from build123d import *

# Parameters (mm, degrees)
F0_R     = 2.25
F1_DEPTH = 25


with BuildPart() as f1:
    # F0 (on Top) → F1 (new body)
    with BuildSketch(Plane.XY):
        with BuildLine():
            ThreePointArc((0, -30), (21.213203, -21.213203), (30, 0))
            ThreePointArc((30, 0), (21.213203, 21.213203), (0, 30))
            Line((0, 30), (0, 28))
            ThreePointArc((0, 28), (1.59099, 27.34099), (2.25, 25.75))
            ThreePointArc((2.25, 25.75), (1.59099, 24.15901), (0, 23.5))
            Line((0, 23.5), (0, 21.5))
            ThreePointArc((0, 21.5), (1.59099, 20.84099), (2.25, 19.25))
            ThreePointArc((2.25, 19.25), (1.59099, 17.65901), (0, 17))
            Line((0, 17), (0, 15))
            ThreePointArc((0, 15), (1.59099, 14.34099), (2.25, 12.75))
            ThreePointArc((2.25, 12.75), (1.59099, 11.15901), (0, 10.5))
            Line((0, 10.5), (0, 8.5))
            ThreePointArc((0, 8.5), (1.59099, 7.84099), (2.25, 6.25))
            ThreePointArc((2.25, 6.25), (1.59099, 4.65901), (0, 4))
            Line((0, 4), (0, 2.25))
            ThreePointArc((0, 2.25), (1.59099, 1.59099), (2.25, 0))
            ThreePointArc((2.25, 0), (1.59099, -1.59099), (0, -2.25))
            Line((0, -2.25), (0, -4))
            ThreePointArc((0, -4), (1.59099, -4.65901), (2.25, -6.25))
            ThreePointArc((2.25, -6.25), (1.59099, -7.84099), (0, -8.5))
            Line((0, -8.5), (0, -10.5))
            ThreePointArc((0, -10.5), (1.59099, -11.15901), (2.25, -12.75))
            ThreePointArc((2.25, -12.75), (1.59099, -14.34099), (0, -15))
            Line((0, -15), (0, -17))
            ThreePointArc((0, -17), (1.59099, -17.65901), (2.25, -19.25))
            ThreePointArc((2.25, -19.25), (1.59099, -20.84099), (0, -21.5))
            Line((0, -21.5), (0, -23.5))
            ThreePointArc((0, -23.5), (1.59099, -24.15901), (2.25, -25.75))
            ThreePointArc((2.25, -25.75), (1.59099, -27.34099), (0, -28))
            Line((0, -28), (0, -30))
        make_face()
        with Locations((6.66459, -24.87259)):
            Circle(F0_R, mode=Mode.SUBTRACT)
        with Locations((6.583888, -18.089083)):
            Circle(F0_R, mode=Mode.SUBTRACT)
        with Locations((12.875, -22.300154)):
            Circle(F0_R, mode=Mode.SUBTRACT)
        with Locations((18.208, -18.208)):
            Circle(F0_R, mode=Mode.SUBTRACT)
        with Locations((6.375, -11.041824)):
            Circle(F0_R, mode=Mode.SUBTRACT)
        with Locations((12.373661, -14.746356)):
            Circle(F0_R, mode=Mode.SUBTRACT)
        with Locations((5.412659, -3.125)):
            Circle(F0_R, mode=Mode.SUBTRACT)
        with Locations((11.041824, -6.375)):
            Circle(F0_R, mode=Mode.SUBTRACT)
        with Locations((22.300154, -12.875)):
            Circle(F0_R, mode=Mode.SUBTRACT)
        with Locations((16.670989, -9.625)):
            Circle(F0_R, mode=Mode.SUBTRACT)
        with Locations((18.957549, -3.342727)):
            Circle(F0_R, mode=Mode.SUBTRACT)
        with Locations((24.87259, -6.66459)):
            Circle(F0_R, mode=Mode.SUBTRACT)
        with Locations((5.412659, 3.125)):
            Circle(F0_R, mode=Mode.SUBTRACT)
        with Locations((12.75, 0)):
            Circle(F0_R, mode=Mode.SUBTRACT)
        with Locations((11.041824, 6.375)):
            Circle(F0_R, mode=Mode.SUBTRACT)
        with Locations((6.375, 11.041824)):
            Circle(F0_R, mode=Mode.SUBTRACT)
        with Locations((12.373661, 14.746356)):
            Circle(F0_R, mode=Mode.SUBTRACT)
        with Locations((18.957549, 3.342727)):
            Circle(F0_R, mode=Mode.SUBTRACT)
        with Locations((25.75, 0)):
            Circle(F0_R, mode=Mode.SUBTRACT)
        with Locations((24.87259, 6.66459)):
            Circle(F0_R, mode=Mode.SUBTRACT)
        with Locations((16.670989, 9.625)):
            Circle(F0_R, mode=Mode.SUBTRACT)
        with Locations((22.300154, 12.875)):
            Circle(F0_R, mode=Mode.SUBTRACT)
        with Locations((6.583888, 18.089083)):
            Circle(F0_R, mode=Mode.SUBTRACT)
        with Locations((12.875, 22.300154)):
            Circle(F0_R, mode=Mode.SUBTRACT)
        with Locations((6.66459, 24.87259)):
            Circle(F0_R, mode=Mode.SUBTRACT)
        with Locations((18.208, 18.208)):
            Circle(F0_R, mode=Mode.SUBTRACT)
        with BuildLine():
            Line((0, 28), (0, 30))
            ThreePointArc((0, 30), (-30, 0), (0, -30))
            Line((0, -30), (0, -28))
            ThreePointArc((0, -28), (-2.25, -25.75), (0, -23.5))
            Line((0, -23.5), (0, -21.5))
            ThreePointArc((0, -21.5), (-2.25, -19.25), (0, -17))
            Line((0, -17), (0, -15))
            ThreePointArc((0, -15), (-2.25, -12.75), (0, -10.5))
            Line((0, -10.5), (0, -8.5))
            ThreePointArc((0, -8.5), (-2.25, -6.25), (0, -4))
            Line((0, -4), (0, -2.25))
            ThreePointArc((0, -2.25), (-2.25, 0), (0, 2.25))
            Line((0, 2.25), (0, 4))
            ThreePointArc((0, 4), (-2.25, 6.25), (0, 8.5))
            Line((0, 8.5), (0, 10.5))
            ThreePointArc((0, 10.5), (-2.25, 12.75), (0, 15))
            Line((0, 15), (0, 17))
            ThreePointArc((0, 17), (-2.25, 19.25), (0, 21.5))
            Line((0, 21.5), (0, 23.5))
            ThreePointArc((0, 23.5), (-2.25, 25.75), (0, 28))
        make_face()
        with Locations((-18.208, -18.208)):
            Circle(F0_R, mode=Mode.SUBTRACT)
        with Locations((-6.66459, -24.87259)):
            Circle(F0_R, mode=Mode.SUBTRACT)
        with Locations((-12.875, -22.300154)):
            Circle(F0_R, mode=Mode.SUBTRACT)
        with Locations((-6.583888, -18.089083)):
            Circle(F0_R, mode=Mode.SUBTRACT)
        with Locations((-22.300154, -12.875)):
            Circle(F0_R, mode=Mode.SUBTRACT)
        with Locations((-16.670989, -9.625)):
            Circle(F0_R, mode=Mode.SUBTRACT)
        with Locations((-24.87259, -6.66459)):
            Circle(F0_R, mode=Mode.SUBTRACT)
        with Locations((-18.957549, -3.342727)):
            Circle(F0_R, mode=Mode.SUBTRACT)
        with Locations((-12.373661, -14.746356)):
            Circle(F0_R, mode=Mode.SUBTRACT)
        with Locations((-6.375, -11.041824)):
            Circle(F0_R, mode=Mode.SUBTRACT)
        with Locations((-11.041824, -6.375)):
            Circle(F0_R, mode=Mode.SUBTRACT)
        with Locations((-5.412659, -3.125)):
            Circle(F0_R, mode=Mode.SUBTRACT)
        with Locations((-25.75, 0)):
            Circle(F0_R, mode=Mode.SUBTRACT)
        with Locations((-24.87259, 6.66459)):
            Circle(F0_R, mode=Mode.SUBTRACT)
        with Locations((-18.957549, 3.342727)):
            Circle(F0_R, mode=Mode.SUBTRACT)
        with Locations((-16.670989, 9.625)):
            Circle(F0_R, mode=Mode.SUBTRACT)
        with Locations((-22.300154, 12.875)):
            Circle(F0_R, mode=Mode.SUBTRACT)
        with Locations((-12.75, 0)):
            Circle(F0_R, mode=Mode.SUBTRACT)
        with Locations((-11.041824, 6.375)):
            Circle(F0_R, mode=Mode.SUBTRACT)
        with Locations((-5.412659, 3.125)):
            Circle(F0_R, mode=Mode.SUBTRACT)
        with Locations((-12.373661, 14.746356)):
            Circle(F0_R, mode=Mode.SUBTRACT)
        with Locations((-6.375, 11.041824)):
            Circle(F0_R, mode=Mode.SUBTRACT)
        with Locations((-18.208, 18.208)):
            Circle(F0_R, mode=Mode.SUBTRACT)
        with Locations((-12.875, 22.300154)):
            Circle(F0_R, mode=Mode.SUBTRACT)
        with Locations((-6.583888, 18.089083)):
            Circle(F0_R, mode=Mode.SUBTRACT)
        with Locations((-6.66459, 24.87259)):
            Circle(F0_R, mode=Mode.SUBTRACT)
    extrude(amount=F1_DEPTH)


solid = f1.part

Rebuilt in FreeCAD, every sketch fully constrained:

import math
import FreeCAD as App
import Part
import Sketcher

V = App.Vector
Q = App.Units.Quantity

doc = App.newDocument("Part")
body = doc.addObject("PartDesign::Body", "Body")

# Sketch on XY plane
sketch1 = body.newObject("Sketcher::SketchObject", "Sketch")
sketch1.AttachmentSupport = (doc.getObject("XY_Plane"), [""])
sketch1.MapMode = "FlatFace"
sketch1.addGeometry([
    Part.ArcOfCircle(Part.Circle(V(0, 0, 0), V(0, 0, 1), 30), math.radians(-90), math.radians(0)),  # 0
    Part.ArcOfCircle(Part.Circle(V(0, 0, 0), V(0, 0, 1), 30), math.radians(0), math.radians(90)),  # 1
    Part.ArcOfCircle(Part.Circle(V(0, 0, 0), V(0, 0, 1), 30), math.radians(90), math.radians(270)),  # 2
    Part.Circle(V(-18.2, -18.2, 0), V(0, 0, 1), 2.2),  # 3
    Part.Circle(V(-12.9, -22.3, 0), V(0, 0, 1), 2.2),  # 4
    Part.Circle(V(-6.7, -24.9, 0), V(0, 0, 1), 2.2),  # 5
    Part.ArcOfCircle(Part.Circle(V(0, -25.7, 0), V(0, 0, 1), 2.3), math.radians(-90), math.radians(0)),  # 6
    Part.ArcOfCircle(Part.Circle(V(0, -25.8, 0), V(0, 0, 1), 2.2), math.radians(90), math.radians(270)),  # 7
    Part.ArcOfCircle(Part.Circle(V(0, -25.8, 0), V(0, 0, 1), 2.3), math.radians(0), math.radians(90)),  # 8
    Part.Circle(V(-12.4, -14.7, 0), V(0, 0, 1), 2.2),  # 9
    Part.Circle(V(-6.6, -18.1, 0), V(0, 0, 1), 2.2),  # 10
    Part.ArcOfCircle(Part.Circle(V(0, -19.2, 0), V(0, 0, 1), 2.3), math.radians(-90), math.radians(0)),  # 11
    Part.ArcOfCircle(Part.Circle(V(0, -19.2, 0), V(0, 0, 1), 2.2), math.radians(90), math.radians(270)),  # 12
    Part.ArcOfCircle(Part.Circle(V(0, -19.3, 0), V(0, 0, 1), 2.3), math.radians(0), math.radians(90)),  # 13
    Part.Circle(V(-22.3, -12.9, 0), V(0, 0, 1), 2.2),  # 14
    Part.Circle(V(-16.7, -9.6, 0), V(0, 0, 1), 2.2),  # 15
    Part.Circle(V(-24.9, -6.7, 0), V(0, 0, 1), 2.2),  # 16
    Part.Circle(V(-19, -3.3, 0), V(0, 0, 1), 2.2),  # 17
    Part.Circle(V(-6.4, -11, 0), V(0, 0, 1), 2.2),  # 18
    Part.Circle(V(-11, -6.4, 0), V(0, 0, 1), 2.2),  # 19
    Part.Circle(V(-5.4, -3.1, 0), V(0, 0, 1), 2.2),  # 20
    Part.Circle(V(6.7, -24.9, 0), V(0, 0, 1), 2.2),  # 21
    Part.Circle(V(12.9, -22.3, 0), V(0, 0, 1), 2.2),  # 22
    Part.Circle(V(6.6, -18.1, 0), V(0, 0, 1), 2.2),  # 23
    Part.Circle(V(12.4, -14.7, 0), V(0, 0, 1), 2.2),  # 24
    Part.Circle(V(18.2, -18.2, 0), V(0, 0, 1), 2.2),  # 25
    Part.ArcOfCircle(Part.Circle(V(0, -12.7, 0), V(0, 0, 1), 2.3), math.radians(-90), math.radians(0)),  # 26
    Part.ArcOfCircle(Part.Circle(V(0, -12.8, 0), V(0, 0, 1), 2.2), math.radians(90), math.radians(270)),  # 27
    Part.ArcOfCircle(Part.Circle(V(0, -12.8, 0), V(0, 0, 1), 2.3), math.radians(0), math.radians(90)),  # 28
    Part.Circle(V(6.4, -11, 0), V(0, 0, 1), 2.2),  # 29
    Part.ArcOfCircle(Part.Circle(V(0, -6.2, 0), V(0, 0, 1), 2.3), math.radians(-90), math.radians(0)),  # 30
    Part.ArcOfCircle(Part.Circle(V(0, -6.2, 0), V(0, 0, 1), 2.2), math.radians(90), math.radians(270)),  # 31
    Part.ArcOfCircle(Part.Circle(V(0, -6.3, 0), V(0, 0, 1), 2.3), math.radians(0), math.radians(90)),  # 32
    Part.Circle(V(5.4, -3.1, 0), V(0, 0, 1), 2.2),  # 33
    Part.Circle(V(11, -6.4, 0), V(0, 0, 1), 2.2),  # 34
    Part.Circle(V(16.7, -9.6, 0), V(0, 0, 1), 2.2),  # 35
    Part.Circle(V(22.3, -12.9, 0), V(0, 0, 1), 2.2),  # 36
    Part.Circle(V(19, -3.3, 0), V(0, 0, 1), 2.2),  # 37
    Part.Circle(V(24.9, -6.7, 0), V(0, 0, 1), 2.2),  # 38
    Part.Circle(V(-25.8, 0, 0), V(0, 0, 1), 2.2),  # 39
    Part.Circle(V(-24.9, 6.7, 0), V(0, 0, 1), 2.2),  # 40
    Part.Circle(V(-19, 3.3, 0), V(0, 0, 1), 2.2),  # 41
    Part.Circle(V(-22.3, 12.9, 0), V(0, 0, 1), 2.2),  # 42
    Part.Circle(V(-16.7, 9.6, 0), V(0, 0, 1), 2.2),  # 43
    Part.Circle(V(-12.8, 0, 0), V(0, 0, 1), 2.2),  # 44
    Part.Circle(V(-11, 6.4, 0), V(0, 0, 1), 2.2),  # 45
    Part.Circle(V(-5.4, 3.1, 0), V(0, 0, 1), 2.2),  # 46
    Part.Circle(V(-6.4, 11, 0), V(0, 0, 1), 2.2),  # 47
    Part.Circle(V(-18.2, 18.2, 0), V(0, 0, 1), 2.2),  # 48
    Part.Circle(V(-12.4, 14.7, 0), V(0, 0, 1), 2.2),  # 49
    Part.Circle(V(-6.6, 18.1, 0), V(0, 0, 1), 2.2),  # 50
    Part.ArcOfCircle(Part.Circle(V(0, 19.2, 0), V(0, 0, 1), 2.3), math.radians(0), math.radians(90)),  # 51
    Part.ArcOfCircle(Part.Circle(V(0, 19.3, 0), V(0, 0, 1), 2.3), math.radians(-90), math.radians(0)),  # 52
    Part.ArcOfCircle(Part.Circle(V(0, 19.2, 0), V(0, 0, 1), 2.2), math.radians(90), math.radians(270)),  # 53
    Part.Circle(V(-12.9, 22.3, 0), V(0, 0, 1), 2.2),  # 54
    Part.Circle(V(-6.7, 24.9, 0), V(0, 0, 1), 2.2),  # 55
    Part.ArcOfCircle(Part.Circle(V(0, 25.7, 0), V(0, 0, 1), 2.3), math.radians(0), math.radians(90)),  # 56
    Part.ArcOfCircle(Part.Circle(V(0, 25.8, 0), V(0, 0, 1), 2.3), math.radians(-90), math.radians(0)),  # 57
    Part.ArcOfCircle(Part.Circle(V(0, 25.8, 0), V(0, 0, 1), 2.2), math.radians(90), math.radians(270)),  # 58
    Part.ArcOfCircle(Part.Circle(V(0, 0, 0), V(0, 0, 1), 2.3), math.radians(-90), math.radians(0)),  # 59
    Part.ArcOfCircle(Part.Circle(V(0, 0, 0), V(0, 0, 1), 2.2), math.radians(90), math.radians(270)),  # 60
    Part.ArcOfCircle(Part.Circle(V(0, 0, 0), V(0, 0, 1), 2.3), math.radians(0), math.radians(90)),  # 61
    Part.Circle(V(5.4, 3.1, 0), V(0, 0, 1), 2.2),  # 62
    Part.ArcOfCircle(Part.Circle(V(0, 6.2, 0), V(0, 0, 1), 2.3), math.radians(0), math.radians(90)),  # 63
    Part.ArcOfCircle(Part.Circle(V(0, 6.3, 0), V(0, 0, 1), 2.3), math.radians(-90), math.radians(0)),  # 64
    Part.ArcOfCircle(Part.Circle(V(0, 6.2, 0), V(0, 0, 1), 2.2), math.radians(90), math.radians(270)),  # 65
    Part.Circle(V(12.8, 0, 0), V(0, 0, 1), 2.2),  # 66
    Part.Circle(V(11, 6.4, 0), V(0, 0, 1), 2.2),  # 67
    Part.ArcOfCircle(Part.Circle(V(0, 12.7, 0), V(0, 0, 1), 2.3), math.radians(0), math.radians(90)),  # 68
    Part.ArcOfCircle(Part.Circle(V(0, 12.8, 0), V(0, 0, 1), 2.3), math.radians(-90), math.radians(0)),  # 69
    Part.ArcOfCircle(Part.Circle(V(0, 12.8, 0), V(0, 0, 1), 2.2), math.radians(90), math.radians(270)),  # 70
    Part.Circle(V(6.4, 11, 0), V(0, 0, 1), 2.2),  # 71
    Part.Circle(V(19, 3.3, 0), V(0, 0, 1), 2.2),  # 72
    Part.Circle(V(25.8, 0, 0), V(0, 0, 1), 2.2),  # 73
    Part.Circle(V(24.9, 6.7, 0), V(0, 0, 1), 2.2),  # 74
    Part.Circle(V(16.7, 9.6, 0), V(0, 0, 1), 2.2),  # 75
    Part.Circle(V(22.3, 12.9, 0), V(0, 0, 1), 2.2),  # 76
    Part.Circle(V(6.6, 18.1, 0), V(0, 0, 1), 2.2),  # 77
    Part.Circle(V(12.4, 14.7, 0), V(0, 0, 1), 2.2),  # 78
    Part.Circle(V(6.7, 24.9, 0), V(0, 0, 1), 2.2),  # 79
    Part.Circle(V(12.9, 22.3, 0), V(0, 0, 1), 2.2),  # 80
    Part.Circle(V(18.2, 18.2, 0), V(0, 0, 1), 2.2),  # 81
], False)
sketch1.addConstraint([
    Sketcher.Constraint("Tangent", 0, 2, 1, 1),
    Sketcher.Constraint("Tangent", 1, 2, 2, 1),
    Sketcher.Constraint("Tangent", 2, 2, 0, 1),
    Sketcher.Constraint("Tangent", 6, 1, 7, 2),
    Sketcher.Constraint("Tangent", 7, 1, 8, 2),
    Sketcher.Constraint("Tangent", 8, 1, 6, 2),
    Sketcher.Constraint("Tangent", 11, 1, 12, 2),
    Sketcher.Constraint("Tangent", 12, 1, 13, 2),
    Sketcher.Constraint("Tangent", 13, 1, 11, 2),
    Sketcher.Constraint("Tangent", 26, 1, 27, 2),
    Sketcher.Constraint("Tangent", 27, 1, 28, 2),
    Sketcher.Constraint("Tangent", 28, 1, 26, 2),
    Sketcher.Constraint("Tangent", 30, 1, 31, 2),
    Sketcher.Constraint("Tangent", 31, 1, 32, 2),
    Sketcher.Constraint("Tangent", 32, 1, 30, 2),
    Sketcher.Constraint("Tangent", 51, 1, 52, 2),
    Sketcher.Constraint("Tangent", 52, 1, 53, 2),
    Sketcher.Constraint("Tangent", 53, 1, 51, 2),
    Sketcher.Constraint("Tangent", 56, 1, 57, 2),
    Sketcher.Constraint("Tangent", 57, 1, 58, 2),
    Sketcher.Constraint("Tangent", 58, 1, 56, 2),
    Sketcher.Constraint("Tangent", 59, 1, 60, 2),
    Sketcher.Constraint("Tangent", 60, 1, 61, 2),
    Sketcher.Constraint("Tangent", 61, 1, 59, 2),
    Sketcher.Constraint("Tangent", 63, 1, 64, 2),
    Sketcher.Constraint("Tangent", 64, 1, 65, 2),
    Sketcher.Constraint("Tangent", 65, 1, 63, 2),
    Sketcher.Constraint("Tangent", 68, 1, 69, 2),
    Sketcher.Constraint("Tangent", 69, 1, 70, 2),
    Sketcher.Constraint("Tangent", 70, 1, 68, 2),
    Sketcher.Constraint("Coincident", 0, 3, -1, 1),
    Sketcher.Constraint("Coincident", 59, 3, -1, 1),
    Sketcher.Constraint("Equal", 3, 4),
    Sketcher.Constraint("Equal", 4, 5),
    Sketcher.Constraint("Equal", 5, 6),
    Sketcher.Constraint("Equal", 8, 9),
    Sketcher.Constraint("Equal", 9, 10),
    Sketcher.Constraint("Equal", 10, 11),
    Sketcher.Constraint("Equal", 13, 14),
    Sketcher.Constraint("Equal", 14, 15),
    Sketcher.Constraint("Equal", 15, 16),
    Sketcher.Constraint("Equal", 16, 17),
    Sketcher.Constraint("Equal", 17, 18),
    Sketcher.Constraint("Equal", 18, 19),
    Sketcher.Constraint("Equal", 19, 20),
    Sketcher.Constraint("Equal", 20, 21),
    Sketcher.Constraint("Equal", 21, 22),
    Sketcher.Constraint("Equal", 22, 23),
    Sketcher.Constraint("Equal", 23, 24),
    Sketcher.Constraint("Equal", 24, 25),
    Sketcher.Constraint("Equal", 25, 26),
    Sketcher.Constraint("Equal", 28, 29),
    Sketcher.Constraint("Equal", 29, 30),
    Sketcher.Constraint("Equal", 32, 33),
    Sketcher.Constraint("Equal", 33, 34),
    Sketcher.Constraint("Equal", 34, 35),
    Sketcher.Constraint("Equal", 35, 36),
    Sketcher.Constraint("Equal", 36, 37),
    Sketcher.Constraint("Equal", 37, 38),
    Sketcher.Constraint("Equal", 38, 39),
    Sketcher.Constraint("Equal", 39, 40),
    Sketcher.Constraint("Equal", 40, 41),
    Sketcher.Constraint("Equal", 41, 42),
    Sketcher.Constraint("Equal", 42, 43),
    Sketcher.Constraint("Equal", 43, 44),
    Sketcher.Constraint("Equal", 44, 45),
    Sketcher.Constraint("Equal", 45, 46),
    Sketcher.Constraint("Equal", 46, 47),
    Sketcher.Constraint("Equal", 47, 48),
    Sketcher.Constraint("Equal", 48, 49),
    Sketcher.Constraint("Equal", 49, 50),
    Sketcher.Constraint("Equal", 50, 51),
    Sketcher.Constraint("Equal", 53, 54),
    Sketcher.Constraint("Equal", 54, 55),
    Sketcher.Constraint("Equal", 55, 56),
    Sketcher.Constraint("Equal", 58, 59),
    Sketcher.Constraint("Equal", 61, 62),
    Sketcher.Constraint("Equal", 62, 63),
    Sketcher.Constraint("Equal", 65, 66),
    Sketcher.Constraint("Equal", 66, 67),
    Sketcher.Constraint("Equal", 67, 68),
    Sketcher.Constraint("Equal", 70, 71),
    Sketcher.Constraint("Equal", 71, 72),
    Sketcher.Constraint("Equal", 72, 73),
    Sketcher.Constraint("Equal", 73, 74),
    Sketcher.Constraint("Equal", 74, 75),
    Sketcher.Constraint("Equal", 75, 76),
    Sketcher.Constraint("Equal", 76, 77),
    Sketcher.Constraint("Equal", 77, 78),
    Sketcher.Constraint("Equal", 78, 79),
    Sketcher.Constraint("Equal", 79, 80),
    Sketcher.Constraint("Equal", 80, 81),
    Sketcher.Constraint("Symmetric", 38, 3, 40, 3, -1, 1),
    Sketcher.Constraint("Symmetric", 37, 3, 41, 3, -1, 1),
    Sketcher.Constraint("Symmetric", 36, 3, 42, 3, -1, 1),
    Sketcher.Constraint("Symmetric", 35, 3, 43, 3, -1, 1),
    Sketcher.Constraint("Symmetric", 34, 3, 45, 3, -1, 1),
    Sketcher.Constraint("Symmetric", 33, 3, 46, 3, -1, 1),
    Sketcher.Constraint("Symmetric", 29, 3, 47, 3, -1, 1),
    Sketcher.Constraint("Symmetric", 25, 3, 48, 3, -1, 1),
    Sketcher.Constraint("Symmetric", 24, 3, 49, 3, -1, 1),
    Sketcher.Constraint("Symmetric", 23, 3, 50, 3, -1, 1),
    Sketcher.Constraint("Symmetric", 11, 3, 51, 3, -1, 1),
    Sketcher.Constraint("Symmetric", 22, 3, 54, 3, -1, 1),
    Sketcher.Constraint("Symmetric", 21, 3, 55, 3, -1, 1),
    Sketcher.Constraint("Symmetric", 6, 3, 56, 3, -1, 1),
    Sketcher.Constraint("Symmetric", 20, 3, 62, 3, -1, 1),
    Sketcher.Constraint("Symmetric", 30, 3, 63, 3, -1, 1),
    Sketcher.Constraint("Symmetric", 44, 3, 66, 3, -1, 1),
    Sketcher.Constraint("Symmetric", 19, 3, 67, 3, -1, 1),
    Sketcher.Constraint("Symmetric", 26, 3, 68, 3, -1, 1),
    Sketcher.Constraint("Symmetric", 18, 3, 71, 3, -1, 1),
    Sketcher.Constraint("Symmetric", 17, 3, 72, 3, -1, 1),
    Sketcher.Constraint("Symmetric", 39, 3, 73, 3, -1, 1),
    Sketcher.Constraint("Symmetric", 16, 3, 74, 3, -1, 1),
    Sketcher.Constraint("Symmetric", 15, 3, 75, 3, -1, 1),
    Sketcher.Constraint("Symmetric", 14, 3, 76, 3, -1, 1),
    Sketcher.Constraint("Symmetric", 10, 3, 77, 3, -1, 1),
    Sketcher.Constraint("Symmetric", 9, 3, 78, 3, -1, 1),
    Sketcher.Constraint("Symmetric", 5, 3, 79, 3, -1, 1),
    Sketcher.Constraint("Symmetric", 4, 3, 80, 3, -1, 1),
    Sketcher.Constraint("Symmetric", 3, 3, 81, 3, -1, 1),
    Sketcher.Constraint("Symmetric", 5, 3, 21, 3, -2),
    Sketcher.Constraint("Symmetric", 4, 3, 22, 3, -2),
    Sketcher.Constraint("Symmetric", 10, 3, 23, 3, -2),
    Sketcher.Constraint("Symmetric", 9, 3, 24, 3, -2),
    Sketcher.Constraint("Symmetric", 3, 3, 25, 3, -2),
    Sketcher.Constraint("Symmetric", 18, 3, 29, 3, -2),
    Sketcher.Constraint("Symmetric", 20, 3, 33, 3, -2),
    Sketcher.Constraint("Symmetric", 19, 3, 34, 3, -2),
    Sketcher.Constraint("Symmetric", 15, 3, 35, 3, -2),
    Sketcher.Constraint("Symmetric", 14, 3, 36, 3, -2),
    Sketcher.Constraint("Symmetric", 17, 3, 37, 3, -2),
    Sketcher.Constraint("Symmetric", 16, 3, 38, 3, -2),
    Sketcher.Constraint("Symmetric", 13, 1, 51, 1, -1),
    Sketcher.Constraint("Symmetric", 8, 1, 56, 1, -1),
    Sketcher.Constraint("Symmetric", 32, 1, 63, 1, -1),
    Sketcher.Constraint("Symmetric", 28, 1, 68, 1, -1),
    Sketcher.Constraint("PointOnObject", 39, 3, -1),
    Sketcher.Constraint("PointOnObject", 44, 3, -1),
    Sketcher.Constraint("PointOnObject", 0, 2, -1),
    Sketcher.Constraint("PointOnObject", 1, 2, -2),
    Sketcher.Constraint("PointOnObject", 2, 2, -2),
    Sketcher.Constraint("PointOnObject", 6, 1, -2),
    Sketcher.Constraint("PointOnObject", 7, 1, -2),
    Sketcher.Constraint("PointOnObject", 11, 1, -2),
    Sketcher.Constraint("PointOnObject", 12, 1, -2),
    Sketcher.Constraint("PointOnObject", 26, 1, -2),
    Sketcher.Constraint("PointOnObject", 27, 1, -2),
    Sketcher.Constraint("PointOnObject", 30, 1, -2),
    Sketcher.Constraint("PointOnObject", 31, 1, -2),
    Sketcher.Constraint("PointOnObject", 52, 1, -2),
    Sketcher.Constraint("PointOnObject", 53, 1, -2),
    Sketcher.Constraint("PointOnObject", 57, 1, -2),
    Sketcher.Constraint("PointOnObject", 58, 1, -2),
    Sketcher.Constraint("PointOnObject", 59, 1, -2),
    Sketcher.Constraint("PointOnObject", 60, 1, -2),
    Sketcher.Constraint("PointOnObject", 61, 1, -1),
    Sketcher.Constraint("PointOnObject", 64, 1, -2),
    Sketcher.Constraint("PointOnObject", 65, 1, -2),
    Sketcher.Constraint("PointOnObject", 69, 1, -2),
    Sketcher.Constraint("PointOnObject", 70, 1, -2),
    Sketcher.Constraint("Horizontal", 7, 3, 8, 1),
    Sketcher.Constraint("Horizontal", 12, 3, 13, 1),
    Sketcher.Constraint("Horizontal", 27, 3, 28, 1),
    Sketcher.Constraint("Horizontal", 31, 3, 32, 1),
    Sketcher.Constraint("Radius", 0, Q("30.000001 mm")),
    Sketcher.Constraint("Diameter", 3, Q("4.5 mm")),
    Sketcher.Constraint("DistanceY", 6, 1, -1, 1, Q("28 mm")),
    Sketcher.Constraint("DistanceY", 12, 1, -1, 1, Q("17 mm")),
    Sketcher.Constraint("DistanceY", 26, 1, -1, 1, Q("15 mm")),
    Sketcher.Constraint("DistanceY", 31, 1, -1, 1, Q("4 mm")),
    Sketcher.Constraint("DistanceX", 39, 3, -1, 1, Q("25.75 mm")),
    Sketcher.Constraint("DistanceX", 44, 3, -1, 1, Q("12.75 mm")),
    Sketcher.Constraint("DistanceX", 3, 3, -1, 1, Q("18.208 mm")),
    Sketcher.Constraint("DistanceY", 3, 3, -1, 1, Q("18.208 mm")),
    Sketcher.Constraint("DistanceX", 4, 3, -1, 1, Q("12.875 mm")),
    Sketcher.Constraint("DistanceY", 14, 3, -1, 1, Q("12.875 mm")),
    Sketcher.Constraint("DistanceY", 15, 3, -1, 1, Q("9.625 mm")),
    Sketcher.Constraint("DistanceX", 18, 3, -1, 1, Q("6.375 mm")),
    Sketcher.Constraint("DistanceY", 19, 3, -1, 1, Q("6.375 mm")),
    Sketcher.Constraint("DistanceY", 20, 3, -1, 1, Q("3.125 mm")),
    Sketcher.Constraint("DistanceX", 5, 3, -1, 1, Q("6.66459 mm")),
    Sketcher.Constraint("DistanceY", 5, 3, -1, 1, Q("24.87259 mm")),
    Sketcher.Constraint("DistanceX", 9, 3, -1, 1, Q("12.373661 mm")),
    Sketcher.Constraint("DistanceX", 15, 3, -1, 1, Q("16.670989 mm")),
    Sketcher.Constraint("DistanceX", 16, 3, -1, 1, Q("24.87259 mm")),
    Sketcher.Constraint("DistanceY", 16, 3, -1, 1, Q("6.66459 mm")),
    Sketcher.Constraint("DistanceX", 17, 3, -1, 1, Q("18.957549 mm")),
    Sketcher.Constraint("DistanceX", 20, 3, -1, 1, Q("5.412659 mm")),
    Sketcher.Constraint("DistanceY", 4, 3, -1, 1, Q("22.300154 mm")),
    Sketcher.Constraint("DistanceY", 9, 3, -1, 1, Q("14.746356 mm")),
    Sketcher.Constraint("DistanceX", 10, 3, -1, 1, Q("6.583888 mm")),
    Sketcher.Constraint("DistanceY", 10, 3, -1, 1, Q("18.089083 mm")),
    Sketcher.Constraint("DistanceX", 14, 3, -1, 1, Q("22.300154 mm")),
    Sketcher.Constraint("DistanceY", 17, 3, -1, 1, Q("3.342727 mm")),
    Sketcher.Constraint("DistanceY", 18, 3, -1, 1, Q("11.041824 mm")),
    Sketcher.Constraint("DistanceX", 19, 3, -1, 1, Q("11.041824 mm")),
])
pad1 = body.newObject("PartDesign::Pad", "Pad")
pad1.Profile = sketch1
pad1.Length = 25

doc.recompute()
